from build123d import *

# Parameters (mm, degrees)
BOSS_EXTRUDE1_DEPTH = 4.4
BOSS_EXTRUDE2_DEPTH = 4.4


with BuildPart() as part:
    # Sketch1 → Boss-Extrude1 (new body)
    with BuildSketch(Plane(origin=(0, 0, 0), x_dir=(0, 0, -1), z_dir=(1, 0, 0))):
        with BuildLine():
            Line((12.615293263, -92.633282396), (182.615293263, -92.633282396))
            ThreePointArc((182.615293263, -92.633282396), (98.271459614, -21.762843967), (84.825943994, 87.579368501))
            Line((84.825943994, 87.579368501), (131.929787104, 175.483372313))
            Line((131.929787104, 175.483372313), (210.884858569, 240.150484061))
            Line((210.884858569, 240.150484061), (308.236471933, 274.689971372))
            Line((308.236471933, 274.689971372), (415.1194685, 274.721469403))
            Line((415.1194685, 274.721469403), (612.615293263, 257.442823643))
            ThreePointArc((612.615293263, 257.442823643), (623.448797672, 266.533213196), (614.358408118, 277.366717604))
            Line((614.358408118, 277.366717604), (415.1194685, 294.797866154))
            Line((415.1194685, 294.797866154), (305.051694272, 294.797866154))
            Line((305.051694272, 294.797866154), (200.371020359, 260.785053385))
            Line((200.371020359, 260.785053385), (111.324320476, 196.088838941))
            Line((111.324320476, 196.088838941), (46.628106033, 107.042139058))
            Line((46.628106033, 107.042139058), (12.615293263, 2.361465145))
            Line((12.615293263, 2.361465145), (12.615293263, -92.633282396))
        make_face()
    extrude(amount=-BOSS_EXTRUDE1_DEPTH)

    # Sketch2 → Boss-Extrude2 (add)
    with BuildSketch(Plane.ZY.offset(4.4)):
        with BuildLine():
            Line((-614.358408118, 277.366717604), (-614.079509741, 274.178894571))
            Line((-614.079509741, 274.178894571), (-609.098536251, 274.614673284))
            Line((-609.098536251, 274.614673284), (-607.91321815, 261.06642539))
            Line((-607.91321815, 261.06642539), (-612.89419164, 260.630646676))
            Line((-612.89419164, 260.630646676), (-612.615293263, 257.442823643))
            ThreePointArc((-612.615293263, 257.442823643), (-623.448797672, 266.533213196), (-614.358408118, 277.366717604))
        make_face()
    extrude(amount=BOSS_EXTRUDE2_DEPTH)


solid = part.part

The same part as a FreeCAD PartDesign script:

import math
import FreeCAD as App
import Part
import Sketcher
Q = App.Units.Quantity

doc = App.newDocument("Part")
body = doc.addObject("PartDesign::Body", "Body")

sketch1 = body.newObject("Sketcher::SketchObject", "Sketch")
sketch1.AttachmentSupport = (doc.getObject("YZ_Plane"), [""])
sketch1.MapMode = "FlatFace"
sketch1.addGeometry([
    Part.LineSegment(App.Vector(-93, -13, 0), App.Vector(-93, -183, 0)),
    Part.ArcOfCircle(Part.Circle(App.Vector(50, -231, 0), App.Vector(0, 0, 1), 150), math.radians(76), math.radians(161)),
    Part.LineSegment(App.Vector(88, -85, 0), App.Vector(175, -132, 0)),
    Part.LineSegment(App.Vector(175, -132, 0), App.Vector(240, -211, 0)),
    Part.LineSegment(App.Vector(240, -211, 0), App.Vector(275, -308, 0)),
    Part.LineSegment(App.Vector(275, -308, 0), App.Vector(275, -415, 0)),
    Part.LineSegment(App.Vector(275, -415, 0), App.Vector(257, -613, 0)),
    Part.ArcOfCircle(Part.Circle(App.Vector(267, -613, 0), App.Vector(0, 0, 1), 10), math.radians(175), math.radians(355)),
    Part.LineSegment(App.Vector(277, -614, 0), App.Vector(295, -415, 0)),
    Part.LineSegment(App.Vector(295, -415, 0), App.Vector(295, -305, 0)),
    Part.LineSegment(App.Vector(295, -305, 0), App.Vector(261, -200, 0)),
    Part.LineSegment(App.Vector(261, -200, 0), App.Vector(196, -111, 0)),
    Part.LineSegment(App.Vector(196, -111, 0), App.Vector(107, -47, 0)),
    Part.LineSegment(App.Vector(107, -47, 0), App.Vector(2, -13, 0)),
    Part.LineSegment(App.Vector(2, -13, 0), App.Vector(-93, -13, 0)),
], False)
sketch1.addConstraint([
    Sketcher.Constraint("Coincident", 0, 2, 1, 2),
    Sketcher.Constraint("Coincident", 1, 1, 2, 1),
    Sketcher.Constraint("Coincident", 2, 2, 3, 1),
    Sketcher.Constraint("Coincident", 3, 2, 4, 1),
    Sketcher.Constraint("Coincident", 4, 2, 5, 1),
    Sketcher.Constraint("Coincident", 5, 2, 6, 1),
    Sketcher.Constraint("Tangent", 6, 2, 7, 1),
    Sketcher.Constraint("Tangent", 7, 2, 8, 1),
    Sketcher.Constraint("Coincident", 8, 2, 9, 1),
    Sketcher.Constraint("Coincident", 9, 2, 10, 1),
    Sketcher.Constraint("Coincident", 10, 2, 11, 1),
    Sketcher.Constraint("Coincident", 11, 2, 12, 1),
    Sketcher.Constraint("Coincident", 12, 2, 13, 1),
    Sketcher.Constraint("Coincident", 13, 2, 14, 1),
    Sketcher.Constraint("Coincident", 14, 2, 0, 1),
    Sketcher.Constraint("Vertical", 0),
    Sketcher.Constraint("Vertical", 9),
    Sketcher.Constraint("Horizontal", 14),
    Sketcher.Constraint("Parallel", 6, 8),
    Sketcher.Constraint("Horizontal", 5, 2, 8, 2),
    Sketcher.Constraint("Equal", 10, 11),
    Sketcher.Constraint("Equal", 11, 12),
    Sketcher.Constraint("Equal", 12, 13),
    Sketcher.Constraint("Radius", 7, Q("10 mm")),
    Sketcher.Constraint("DistanceY", 0, 2, 0, 1, Q("170 mm")),
    Sketcher.Constraint("Angle", 6, Q("-95 deg")),
    Sketcher.Constraint("Angle", 10, Q("108 deg")),
    Sketcher.Constraint("Angle", 11, Q("126 deg")),
    Sketcher.Constraint("Angle", 12, Q("144 deg")),
    Sketcher.Constraint("Angle", 13, Q("162 deg")),
    Sketcher.Constraint("Distance", 8, Q("200 mm")),
    Sketcher.Constraint("Radius", 1, Q("150.457839 mm")),
    Sketcher.Constraint("Distance", 5, Q("106.883001 mm")),
    Sketcher.Constraint("DistanceX", 2, 2, 7, 3, Q("91.921398 mm")),
    Sketcher.Constraint("DistanceX", 2, 2, 4, 2, Q("99.206599 mm")),
    Sketcher.Constraint("DistanceY", 5, 2, 1, 3, Q("184.605199 mm")),
    Sketcher.Constraint("DistanceY", 10, 2, 11, 2, Q("89.0467 mm")),
    Sketcher.Constraint("DistanceX", 14, 2, 14, 1, Q("94.994748 mm")),
    Sketcher.Constraint("DistanceY", 9, 1, 9, 2, Q("110.067774 mm")),
    Sketcher.Constraint("DistanceX", -1, 1, 1, 3, Q("49.996482 mm")),
    Sketcher.Constraint("DistanceY", 1, 3, -1, 1, Q("230.514269 mm")),
    Sketcher.Constraint("DistanceX", -1, 1, 1, 1, Q("87.579369 mm")),
    Sketcher.Constraint("DistanceY", 3, 2, -1, 1, Q("210.884859 mm")),
    Sketcher.Constraint("DistanceY", 1, 3, 2, 2, Q("98.584482 mm")),
    Sketcher.Constraint("DistanceX", 2, 2, 3, 2, Q("64.667112 mm")),
])
pad1 = body.newObject("PartDesign::Pad", "Pad")
pad1.Profile = sketch1
pad1.Length = 4.4
pad1.Reversed = True

sketch2 = body.newObject("Sketcher::SketchObject", "Sketch001")
sketch2.AttachmentSupport = (doc.getObject("YZ_Plane"), [""])
sketch2.MapMode = "FlatFace"
sketch2.AttachmentOffset = App.Placement(App.Vector(0, 0, -4.4), App.Rotation())
sketch2.addGeometry([
    Part.LineSegment(App.Vector(274.2, -614.1, 0), App.Vector(277.4, -614.4, 0)),
    Part.ArcOfCircle(Part.Circle(App.Vector(267.4, -613.5, 0), App.Vector(0, 0, 1), 10), math.radians(175), math.radians(355)),
    Part.LineSegment(App.Vector(257.4, -612.6, 0), App.Vector(260.6, -612.9, 0)),
    Part.LineSegment(App.Vector(260.6, -612.9, 0), App.Vector(261.1, -607.9, 0)),
    Part.LineSegment(App.Vector(261.1, -607.9, 0), App.Vector(274.6, -609.1, 0)),
    Part.LineSegment(App.Vector(274.6, -609.1, 0), App.Vector(274.2, -614.1, 0)),
], False)
sketch2.addConstraint([
    Sketcher.Constraint("Coincident", 0, 2, 1, 2),
    Sketcher.Constraint("Coincident", 1, 1, 2, 1),
    Sketcher.Constraint("Coincident", 2, 2, 3, 1),
    Sketcher.Constraint("Coincident", 3, 2, 4, 1),
    Sketcher.Constraint("Coincident", 4, 2, 5, 1),
    Sketcher.Constraint("Coincident", 5, 2, 0, 1),
    Sketcher.Constraint("Parallel", 0, 2),
    Sketcher.Constraint("Perpendicular", 2, 3),
    Sketcher.Constraint("Perpendicular", 3, 4),
    Sketcher.Constraint("Perpendicular", 4, 5),
    Sketcher.Constraint("Equal", 0, 2),
    Sketcher.Constraint("Equal", 3, 5),
    Sketcher.Constraint("Radius", 1, Q("10 mm")),
    Sketcher.Constraint("Angle", 0, Q("-5 deg")),
    Sketcher.Constraint("Distance", 3, Q("5 mm")),
    Sketcher.Constraint("Distance", 0, Q("3.2 mm")),
    Sketcher.Constraint("DistanceX", -1, 1, 1, 3, Q("267.404771 mm")),
    Sketcher.Constraint("DistanceY", 1, 3, -1, 1, Q("613.486851 mm")),
    Sketcher.Constraint("DistanceY", 0, 2, -1, 1, Q("614.358408 mm")),
])
pad2 = body.newObject("PartDesign::Pad", "Pad001")
pad2.Profile = sketch2
pad2.Length = 4.4
pad2.Reversed = True

doc.recompute()
